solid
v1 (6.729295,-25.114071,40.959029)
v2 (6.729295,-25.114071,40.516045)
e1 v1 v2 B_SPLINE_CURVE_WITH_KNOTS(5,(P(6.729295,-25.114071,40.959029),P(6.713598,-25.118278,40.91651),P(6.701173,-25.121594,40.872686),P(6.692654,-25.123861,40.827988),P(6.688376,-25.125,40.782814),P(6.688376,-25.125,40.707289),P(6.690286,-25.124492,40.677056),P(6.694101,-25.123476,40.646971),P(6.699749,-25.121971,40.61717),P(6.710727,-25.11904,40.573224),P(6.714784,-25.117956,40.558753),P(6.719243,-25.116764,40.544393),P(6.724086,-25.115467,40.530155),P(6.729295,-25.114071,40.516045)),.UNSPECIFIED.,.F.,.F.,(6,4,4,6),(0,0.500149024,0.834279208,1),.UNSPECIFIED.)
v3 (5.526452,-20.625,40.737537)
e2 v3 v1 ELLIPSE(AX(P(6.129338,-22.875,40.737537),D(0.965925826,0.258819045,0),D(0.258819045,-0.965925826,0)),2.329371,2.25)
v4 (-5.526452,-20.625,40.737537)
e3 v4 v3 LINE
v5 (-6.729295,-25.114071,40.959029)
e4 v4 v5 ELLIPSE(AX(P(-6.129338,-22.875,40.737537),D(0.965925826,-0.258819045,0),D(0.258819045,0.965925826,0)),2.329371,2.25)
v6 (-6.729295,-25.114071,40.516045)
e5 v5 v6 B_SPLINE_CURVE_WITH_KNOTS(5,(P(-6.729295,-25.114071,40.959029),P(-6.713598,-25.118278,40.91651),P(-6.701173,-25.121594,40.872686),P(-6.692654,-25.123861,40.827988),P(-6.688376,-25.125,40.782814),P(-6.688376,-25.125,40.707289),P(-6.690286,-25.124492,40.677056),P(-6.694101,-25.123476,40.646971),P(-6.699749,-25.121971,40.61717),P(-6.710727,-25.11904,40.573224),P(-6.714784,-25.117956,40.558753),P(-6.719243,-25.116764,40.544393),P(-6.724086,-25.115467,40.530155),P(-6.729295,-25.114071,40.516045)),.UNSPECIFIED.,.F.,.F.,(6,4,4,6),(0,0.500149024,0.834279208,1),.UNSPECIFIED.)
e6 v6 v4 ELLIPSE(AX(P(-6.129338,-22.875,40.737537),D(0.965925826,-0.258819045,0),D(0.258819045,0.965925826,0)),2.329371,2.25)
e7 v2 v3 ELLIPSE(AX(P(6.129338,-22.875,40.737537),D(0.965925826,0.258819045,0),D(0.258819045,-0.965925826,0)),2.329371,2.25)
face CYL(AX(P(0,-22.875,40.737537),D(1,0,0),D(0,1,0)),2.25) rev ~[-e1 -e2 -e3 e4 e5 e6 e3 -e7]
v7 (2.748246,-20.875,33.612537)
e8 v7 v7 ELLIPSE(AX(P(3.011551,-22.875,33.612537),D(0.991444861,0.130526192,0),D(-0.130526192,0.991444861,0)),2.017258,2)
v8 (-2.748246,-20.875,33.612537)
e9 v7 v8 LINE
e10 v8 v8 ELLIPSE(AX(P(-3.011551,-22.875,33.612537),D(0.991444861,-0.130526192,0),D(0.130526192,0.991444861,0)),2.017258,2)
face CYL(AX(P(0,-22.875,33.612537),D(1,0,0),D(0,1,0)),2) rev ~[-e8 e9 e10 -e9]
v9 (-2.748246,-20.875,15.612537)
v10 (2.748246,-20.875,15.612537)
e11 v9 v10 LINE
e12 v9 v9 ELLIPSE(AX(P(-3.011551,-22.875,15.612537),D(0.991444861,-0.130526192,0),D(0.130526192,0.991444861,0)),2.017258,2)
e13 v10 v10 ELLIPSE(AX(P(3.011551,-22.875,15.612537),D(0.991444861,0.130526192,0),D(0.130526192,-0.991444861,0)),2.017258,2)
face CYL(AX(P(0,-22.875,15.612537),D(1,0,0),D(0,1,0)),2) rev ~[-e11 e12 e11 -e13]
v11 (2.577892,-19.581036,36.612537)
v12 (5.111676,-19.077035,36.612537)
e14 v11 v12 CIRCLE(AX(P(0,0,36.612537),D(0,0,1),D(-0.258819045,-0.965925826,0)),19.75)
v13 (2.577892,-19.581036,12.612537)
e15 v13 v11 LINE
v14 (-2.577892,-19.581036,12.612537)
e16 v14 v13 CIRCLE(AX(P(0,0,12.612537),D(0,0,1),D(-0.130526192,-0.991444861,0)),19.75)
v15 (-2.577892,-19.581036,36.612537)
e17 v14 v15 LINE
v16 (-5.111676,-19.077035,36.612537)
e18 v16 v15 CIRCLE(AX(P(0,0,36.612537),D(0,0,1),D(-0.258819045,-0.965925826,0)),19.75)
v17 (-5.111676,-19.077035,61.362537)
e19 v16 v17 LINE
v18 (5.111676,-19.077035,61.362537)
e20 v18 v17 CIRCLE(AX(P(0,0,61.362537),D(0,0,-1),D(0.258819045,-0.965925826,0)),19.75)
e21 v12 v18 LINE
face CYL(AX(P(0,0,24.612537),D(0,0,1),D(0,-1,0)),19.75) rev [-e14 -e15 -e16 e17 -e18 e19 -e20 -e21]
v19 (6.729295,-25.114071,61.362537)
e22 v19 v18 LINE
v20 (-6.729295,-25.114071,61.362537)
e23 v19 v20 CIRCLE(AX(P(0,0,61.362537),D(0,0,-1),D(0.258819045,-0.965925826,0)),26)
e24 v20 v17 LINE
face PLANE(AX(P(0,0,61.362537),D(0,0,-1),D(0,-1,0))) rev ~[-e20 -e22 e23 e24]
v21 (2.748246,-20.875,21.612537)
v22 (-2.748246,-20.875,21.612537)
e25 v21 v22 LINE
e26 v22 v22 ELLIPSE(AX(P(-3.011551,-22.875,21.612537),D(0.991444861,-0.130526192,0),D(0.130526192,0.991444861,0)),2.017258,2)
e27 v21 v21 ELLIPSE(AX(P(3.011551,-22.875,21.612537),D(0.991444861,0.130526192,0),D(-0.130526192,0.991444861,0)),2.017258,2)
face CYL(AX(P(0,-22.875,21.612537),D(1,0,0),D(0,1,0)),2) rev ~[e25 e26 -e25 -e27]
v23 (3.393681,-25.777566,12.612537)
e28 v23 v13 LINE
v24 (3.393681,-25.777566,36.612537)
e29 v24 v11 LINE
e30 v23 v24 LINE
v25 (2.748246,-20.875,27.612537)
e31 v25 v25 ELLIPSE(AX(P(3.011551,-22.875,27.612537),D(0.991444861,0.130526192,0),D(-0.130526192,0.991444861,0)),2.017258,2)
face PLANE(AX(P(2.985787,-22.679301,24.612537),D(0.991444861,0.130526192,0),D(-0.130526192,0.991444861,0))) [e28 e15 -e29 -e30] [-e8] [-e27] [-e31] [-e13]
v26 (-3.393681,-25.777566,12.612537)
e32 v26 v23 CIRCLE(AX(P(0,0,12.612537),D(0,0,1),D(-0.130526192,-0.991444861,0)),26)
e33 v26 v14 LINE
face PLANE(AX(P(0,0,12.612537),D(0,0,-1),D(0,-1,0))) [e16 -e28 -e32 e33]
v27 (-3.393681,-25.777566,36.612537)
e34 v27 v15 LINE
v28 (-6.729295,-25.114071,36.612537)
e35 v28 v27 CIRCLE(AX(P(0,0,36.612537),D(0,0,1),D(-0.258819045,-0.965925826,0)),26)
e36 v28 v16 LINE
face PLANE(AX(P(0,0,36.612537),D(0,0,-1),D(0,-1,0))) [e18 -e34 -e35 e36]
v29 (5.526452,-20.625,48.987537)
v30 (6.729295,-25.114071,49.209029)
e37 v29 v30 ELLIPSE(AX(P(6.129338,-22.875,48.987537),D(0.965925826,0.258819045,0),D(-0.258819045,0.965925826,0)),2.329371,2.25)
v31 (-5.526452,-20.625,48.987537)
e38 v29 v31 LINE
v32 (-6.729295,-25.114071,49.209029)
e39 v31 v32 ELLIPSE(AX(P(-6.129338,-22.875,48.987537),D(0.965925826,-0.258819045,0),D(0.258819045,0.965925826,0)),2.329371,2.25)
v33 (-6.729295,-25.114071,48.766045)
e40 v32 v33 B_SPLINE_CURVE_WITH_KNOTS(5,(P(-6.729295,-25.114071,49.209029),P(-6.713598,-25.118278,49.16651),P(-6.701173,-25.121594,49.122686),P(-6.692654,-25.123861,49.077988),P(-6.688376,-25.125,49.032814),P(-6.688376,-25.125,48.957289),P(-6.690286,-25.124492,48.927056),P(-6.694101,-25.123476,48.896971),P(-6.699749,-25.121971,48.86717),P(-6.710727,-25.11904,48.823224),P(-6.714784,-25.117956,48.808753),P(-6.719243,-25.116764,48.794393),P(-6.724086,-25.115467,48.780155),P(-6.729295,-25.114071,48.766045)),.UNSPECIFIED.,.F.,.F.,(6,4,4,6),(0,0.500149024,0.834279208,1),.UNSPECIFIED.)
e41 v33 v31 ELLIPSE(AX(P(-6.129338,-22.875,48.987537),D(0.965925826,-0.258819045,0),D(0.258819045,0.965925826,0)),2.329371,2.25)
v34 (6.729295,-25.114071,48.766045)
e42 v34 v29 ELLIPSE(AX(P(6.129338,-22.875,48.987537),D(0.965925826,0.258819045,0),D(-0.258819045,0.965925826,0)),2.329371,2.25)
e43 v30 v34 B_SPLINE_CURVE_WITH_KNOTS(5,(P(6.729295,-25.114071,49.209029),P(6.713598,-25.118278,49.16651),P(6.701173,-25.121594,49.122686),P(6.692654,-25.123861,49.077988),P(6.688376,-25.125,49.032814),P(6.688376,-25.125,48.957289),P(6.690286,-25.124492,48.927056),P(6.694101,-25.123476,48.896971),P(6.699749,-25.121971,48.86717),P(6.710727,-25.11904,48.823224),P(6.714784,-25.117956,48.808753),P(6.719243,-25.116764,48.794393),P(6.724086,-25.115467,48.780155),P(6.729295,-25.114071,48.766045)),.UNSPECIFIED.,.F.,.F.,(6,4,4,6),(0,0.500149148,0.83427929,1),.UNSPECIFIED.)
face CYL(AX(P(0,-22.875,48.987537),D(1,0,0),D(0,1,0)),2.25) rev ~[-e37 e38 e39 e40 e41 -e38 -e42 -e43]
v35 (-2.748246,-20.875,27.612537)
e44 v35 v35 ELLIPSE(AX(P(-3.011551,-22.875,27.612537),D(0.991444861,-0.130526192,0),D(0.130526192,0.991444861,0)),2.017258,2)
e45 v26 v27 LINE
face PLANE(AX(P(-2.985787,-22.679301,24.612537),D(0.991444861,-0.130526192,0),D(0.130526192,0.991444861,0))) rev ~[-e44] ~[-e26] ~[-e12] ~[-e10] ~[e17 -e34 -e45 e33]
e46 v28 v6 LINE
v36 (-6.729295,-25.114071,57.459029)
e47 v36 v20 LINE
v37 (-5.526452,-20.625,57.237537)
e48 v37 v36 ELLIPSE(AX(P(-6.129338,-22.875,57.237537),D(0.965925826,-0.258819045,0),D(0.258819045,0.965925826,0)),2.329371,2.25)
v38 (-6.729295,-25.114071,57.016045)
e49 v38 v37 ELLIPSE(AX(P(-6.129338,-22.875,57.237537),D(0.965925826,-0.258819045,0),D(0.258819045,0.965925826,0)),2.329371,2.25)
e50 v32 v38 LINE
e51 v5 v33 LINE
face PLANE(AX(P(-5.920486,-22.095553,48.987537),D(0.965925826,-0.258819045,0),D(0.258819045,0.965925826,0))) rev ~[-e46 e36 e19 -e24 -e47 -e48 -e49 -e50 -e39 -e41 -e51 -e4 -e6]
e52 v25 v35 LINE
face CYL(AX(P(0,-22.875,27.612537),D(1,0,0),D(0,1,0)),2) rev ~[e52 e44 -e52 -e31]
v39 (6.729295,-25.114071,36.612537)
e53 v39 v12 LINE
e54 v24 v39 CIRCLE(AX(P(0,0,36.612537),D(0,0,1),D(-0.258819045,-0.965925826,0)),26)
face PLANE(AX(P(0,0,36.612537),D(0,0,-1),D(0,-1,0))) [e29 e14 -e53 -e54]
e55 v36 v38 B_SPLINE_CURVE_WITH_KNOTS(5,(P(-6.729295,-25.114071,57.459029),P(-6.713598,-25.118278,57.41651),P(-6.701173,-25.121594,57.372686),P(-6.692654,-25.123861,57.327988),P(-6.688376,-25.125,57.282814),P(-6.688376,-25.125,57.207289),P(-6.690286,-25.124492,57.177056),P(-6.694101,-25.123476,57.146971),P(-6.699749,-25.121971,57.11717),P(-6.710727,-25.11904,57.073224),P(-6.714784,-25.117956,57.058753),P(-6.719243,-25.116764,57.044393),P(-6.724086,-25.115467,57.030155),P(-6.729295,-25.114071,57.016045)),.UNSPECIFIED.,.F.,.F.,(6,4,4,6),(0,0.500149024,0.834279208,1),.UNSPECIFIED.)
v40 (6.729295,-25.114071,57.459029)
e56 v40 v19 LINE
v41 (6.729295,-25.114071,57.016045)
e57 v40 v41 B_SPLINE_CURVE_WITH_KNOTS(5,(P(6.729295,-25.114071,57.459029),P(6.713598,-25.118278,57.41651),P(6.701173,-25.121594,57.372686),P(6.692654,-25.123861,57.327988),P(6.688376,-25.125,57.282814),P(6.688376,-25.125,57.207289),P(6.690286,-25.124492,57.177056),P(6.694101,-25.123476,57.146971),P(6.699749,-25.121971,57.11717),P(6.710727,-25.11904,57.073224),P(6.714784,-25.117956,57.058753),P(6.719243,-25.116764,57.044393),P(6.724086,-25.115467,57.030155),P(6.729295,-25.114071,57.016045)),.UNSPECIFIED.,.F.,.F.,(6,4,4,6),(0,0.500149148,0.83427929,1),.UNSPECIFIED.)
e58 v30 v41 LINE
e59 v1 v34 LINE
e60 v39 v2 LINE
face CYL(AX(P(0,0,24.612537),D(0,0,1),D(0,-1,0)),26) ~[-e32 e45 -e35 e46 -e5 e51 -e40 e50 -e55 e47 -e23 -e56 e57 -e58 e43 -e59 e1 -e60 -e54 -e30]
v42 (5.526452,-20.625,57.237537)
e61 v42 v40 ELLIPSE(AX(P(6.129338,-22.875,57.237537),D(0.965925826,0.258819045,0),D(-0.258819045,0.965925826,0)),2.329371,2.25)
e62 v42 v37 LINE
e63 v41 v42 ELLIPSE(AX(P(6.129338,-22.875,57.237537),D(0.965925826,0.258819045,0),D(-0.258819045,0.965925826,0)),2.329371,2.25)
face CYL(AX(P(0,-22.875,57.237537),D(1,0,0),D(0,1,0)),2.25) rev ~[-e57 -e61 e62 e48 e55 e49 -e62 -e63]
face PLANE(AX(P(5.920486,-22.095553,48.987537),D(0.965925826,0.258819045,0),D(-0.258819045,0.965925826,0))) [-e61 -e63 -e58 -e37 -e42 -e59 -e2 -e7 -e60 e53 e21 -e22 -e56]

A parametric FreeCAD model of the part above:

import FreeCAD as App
import Part
import Sketcher


def add_polygon(sketch, points):
    """Adds a closed chain of lines whose ends are joined by coincident constraints."""
    first, n = sketch.GeometryCount, len(points)
    for a, b in zip(points, points[1:] + points[:1]):
        sketch.addGeometry(Part.LineSegment(App.Vector(*a, 0), App.Vector(*b, 0)), False)
    for i in range(n):
        sketch.addConstraint(Sketcher.Constraint("Coincident", first + i, 2, first + (i + 1) % n, 1))

doc = App.newDocument("Part")
body = doc.addObject("PartDesign::Body", "Body")

# Sketch on YZ plane
sketch1 = body.newObject("Sketcher::SketchObject", "Sketch")
sketch1.AttachmentSupport = (doc.getObject("YZ_Plane"), [""])
sketch1.MapMode = "FlatFace"
add_polygon(sketch1, [(-26, 61), (-26, 37), (-20, 37), (-20, 61)])  # lines 0-3
sketch1.addConstraint(Sketcher.Constraint("Vertical", 0))
sketch1.addConstraint(Sketcher.Constraint("Horizontal", 1))
sketch1.addConstraint(Sketcher.Constraint("Vertical", 2))
sketch1.addConstraint(Sketcher.Constraint("Horizontal", 3))
sketch1.addConstraint(Sketcher.Constraint("DistanceX", 0, 2, -1, 1, 26.0))
sketch1.addConstraint(Sketcher.Constraint("DistanceX", 1, 1, 1, 2, 6.25))
sketch1.addConstraint(Sketcher.Constraint("DistanceY", 0, 2, 0, 1, 24.75))
sketch1.addConstraint(Sketcher.Constraint("DistanceY", -1, 1, 0, 2, 36.612537))
revolution = body.newObject("PartDesign::Revolution", "Revolution")
revolution.Profile = sketch1
revolution.ReferenceAxis = (sketch1, ["V_Axis"])
revolution.Angle = 15

# Sketch on YZ plane
sketch2 = body.newObject("Sketcher::SketchObject", "Sketch001")
sketch2.AttachmentSupport = (doc.getObject("YZ_Plane"), [""])
sketch2.MapMode = "FlatFace"
add_polygon(sketch2, [(-26, 61), (-26, 37), (-20, 37), (-20, 61)])  # lines 0-3
sketch2.addConstraint(Sketcher.Constraint("Vertical", 0))
sketch2.addConstraint(Sketcher.Constraint("Horizontal", 1))
sketch2.addConstraint(Sketcher.Constraint("Vertical", 2))
sketch2.addConstraint(Sketcher.Constraint("Horizontal", 3))
sketch2.addConstraint(Sketcher.Constraint("DistanceX", 0, 2, -1, 1, 26.0))
sketch2.addConstraint(Sketcher.Constraint("DistanceX", 1, 1, 1, 2, 6.25))
sketch2.addConstraint(Sketcher.Constraint("DistanceY", 0, 2, 0, 1, 24.75))
sketch2.addConstraint(Sketcher.Constraint("DistanceY", -1, 1, 0, 2, 36.612537))
revolution2 = body.newObject("PartDesign::Revolution", "Revolution001")
revolution2.Profile = sketch2
revolution2.ReferenceAxis = (sketch2, ["V_Axis"])
revolution2.Angle = 15
revolution2.Reversed = True

# Sketch on YZ plane
sketch3 = body.newObject("Sketcher::SketchObject", "Sketch002")
sketch3.AttachmentSupport = (doc.getObject("YZ_Plane"), [""])
sketch3.MapMode = "FlatFace"
sketch3.addGeometry(Part.Circle(App.Vector(-22.9, 57.2, 0), App.Vector(0, 0, 1), 2.2), False)
sketch3.addGeometry(Part.Circle(App.Vector(-22.9, 49, 0), App.Vector(0, 0, 1), 2.2), False)
sketch3.addGeometry(Part.Circle(App.Vector(-22.9, 40.7, 0), App.Vector(0, 0, 1), 2.2), False)
sketch3.addConstraint(Sketcher.Constraint("Equal", 0, 1))
sketch3.addConstraint(Sketcher.Constraint("Equal", 1, 2))
sketch3.addConstraint(Sketcher.Constraint("Vertical", 0, 3, 1, 3))
sketch3.addConstraint(Sketcher.Constraint("Vertical", 1, 3, 2, 3))
sketch3.addConstraint(Sketcher.Constraint("Diameter", 0, 4.5))
sketch3.addConstraint(Sketcher.Constraint("DistanceY", 2, 3, 0, 3, 16.5))
sketch3.addConstraint(Sketcher.Constraint("DistanceY", 1, 3, 0, 3, 8.25))
sketch3.addConstraint(Sketcher.Constraint("DistanceX", 0, 3, -1, 1, 22.875))
sketch3.addConstraint(Sketcher.Constraint("DistanceY", -1, 1, 0, 3, 57.237537))
pocket1 = body.newObject("PartDesign::Pocket", "Pocket")
pocket1.Profile = sketch3
pocket1.Length = 25
pocket1.Midplane = True

# Sketch on YZ plane
sketch4 = body.newObject("Sketcher::SketchObject", "Sketch003")
sketch4.AttachmentSupport = (doc.getObject("YZ_Plane"), [""])
sketch4.MapMode = "FlatFace"
add_polygon(sketch4, [(-26, 37), (-26, 13), (-20, 13), (-20, 37)])  # lines 0-3
sketch4.addConstraint(Sketcher.Constraint("Vertical", 0))
sketch4.addConstraint(Sketcher.Constraint("Horizontal", 1))
sketch4.addConstraint(Sketcher.Constraint("Vertical", 2))
sketch4.addConstraint(Sketcher.Constraint("Horizontal", 3))
sketch4.addConstraint(Sketcher.Constraint("DistanceY", 0, 2, 0, 1, 24.0))
sketch4.addConstraint(Sketcher.Constraint("DistanceX", 0, 2, -1, 1, 26.0))
sketch4.addConstraint(Sketcher.Constraint("DistanceX", 1, 1, 1, 2, 6.25))
sketch4.addConstraint(Sketcher.Constraint("DistanceY", -1, 1, 0, 2, 12.612537))
revolution3 = body.newObject("PartDesign::Revolution", "Revolution002")
revolution3.Profile = sketch4
revolution3.ReferenceAxis = (sketch4, ["V_Axis"])
revolution3.Angle = 7.5

# Sketch on YZ plane
sketch5 = body.newObject("Sketcher::SketchObject", "Sketch004")
sketch5.AttachmentSupport = (doc.getObject("YZ_Plane"), [""])
sketch5.MapMode = "FlatFace"
add_polygon(sketch5, [(-26, 37), (-26, 13), (-20, 13), (-20, 37)])  # lines 0-3
sketch5.addConstraint(Sketcher.Constraint("Vertical", 0))
sketch5.addConstraint(Sketcher.Constraint("Horizontal", 1))
sketch5.addConstraint(Sketcher.Constraint("Vertical", 2))
sketch5.addConstraint(Sketcher.Constraint("Horizontal", 3))
sketch5.addConstraint(Sketcher.Constraint("DistanceY", 0, 2, 0, 1, 24.0))
sketch5.addConstraint(Sketcher.Constraint("DistanceX", 0, 2, -1, 1, 26.0))
sketch5.addConstraint(Sketcher.Constraint("DistanceX", 1, 1, 1, 2, 6.25))
sketch5.addConstraint(Sketcher.Constraint("DistanceY", -1, 1, 0, 2, 12.612537))
revolution4 = body.newObject("PartDesign::Revolution", "Revolution003")
revolution4.Profile = sketch5
revolution4.ReferenceAxis = (sketch5, ["V_Axis"])
revolution4.Angle = 7.5
revolution4.Reversed = True

# Sketch on YZ plane
sketch6 = body.newObject("Sketcher::SketchObject", "Sketch005")
sketch6.AttachmentSupport = (doc.getObject("YZ_Plane"), [""])
sketch6.MapMode = "FlatFace"
sketch6.addGeometry(Part.Circle(App.Vector(-22.9, 33.6, 0), App.Vector(0, 0, 1), 2), False)
sketch6.addGeometry(Part.Circle(App.Vector(-22.9, 27.6, 0), App.Vector(0, 0, 1), 2), False)
sketch6.addGeometry(Part.Circle(App.Vector(-22.9, 21.6, 0), App.Vector(0, 0, 1), 2), False)
sketch6.addGeometry(Part.Circle(App.Vector(-22.9, 15.6, 0), App.Vector(0, 0, 1), 2), False)
sketch6.addConstraint(Sketcher.Constraint("Equal", 0, 1))
sketch6.addConstraint(Sketcher.Constraint("Equal", 1, 2))
sketch6.addConstraint(Sketcher.Constraint("Equal", 2, 3))
sketch6.addConstraint(Sketcher.Constraint("Vertical", 0, 3, 1, 3))
sketch6.addConstraint(Sketcher.Constraint("Vertical", 1, 3, 2, 3))
sketch6.addConstraint(Sketcher.Constraint("Vertical", 2, 3, 3, 3))
sketch6.addConstraint(Sketcher.Constraint("Diameter", 0, 4.0))
sketch6.addConstraint(Sketcher.Constraint("DistanceY", 1, 3, 0, 3, 6.0))
sketch6.addConstraint(Sketcher.Constraint("DistanceY", 2, 3, 1, 3, 6.0))
sketch6.addConstraint(Sketcher.Constraint("DistanceY", 3, 3, 2, 3, 6.0))
sketch6.addConstraint(Sketcher.Constraint("DistanceX", 0, 3, -1, 1, 22.875))
sketch6.addConstraint(Sketcher.Constraint("DistanceY", -1, 1, 0, 3, 33.612537))
pocket2 = body.newObject("PartDesign::Pocket", "Pocket001")
pocket2.Profile = sketch6
pocket2.Length = 10
pocket2.Midplane = True

doc.recompute()
